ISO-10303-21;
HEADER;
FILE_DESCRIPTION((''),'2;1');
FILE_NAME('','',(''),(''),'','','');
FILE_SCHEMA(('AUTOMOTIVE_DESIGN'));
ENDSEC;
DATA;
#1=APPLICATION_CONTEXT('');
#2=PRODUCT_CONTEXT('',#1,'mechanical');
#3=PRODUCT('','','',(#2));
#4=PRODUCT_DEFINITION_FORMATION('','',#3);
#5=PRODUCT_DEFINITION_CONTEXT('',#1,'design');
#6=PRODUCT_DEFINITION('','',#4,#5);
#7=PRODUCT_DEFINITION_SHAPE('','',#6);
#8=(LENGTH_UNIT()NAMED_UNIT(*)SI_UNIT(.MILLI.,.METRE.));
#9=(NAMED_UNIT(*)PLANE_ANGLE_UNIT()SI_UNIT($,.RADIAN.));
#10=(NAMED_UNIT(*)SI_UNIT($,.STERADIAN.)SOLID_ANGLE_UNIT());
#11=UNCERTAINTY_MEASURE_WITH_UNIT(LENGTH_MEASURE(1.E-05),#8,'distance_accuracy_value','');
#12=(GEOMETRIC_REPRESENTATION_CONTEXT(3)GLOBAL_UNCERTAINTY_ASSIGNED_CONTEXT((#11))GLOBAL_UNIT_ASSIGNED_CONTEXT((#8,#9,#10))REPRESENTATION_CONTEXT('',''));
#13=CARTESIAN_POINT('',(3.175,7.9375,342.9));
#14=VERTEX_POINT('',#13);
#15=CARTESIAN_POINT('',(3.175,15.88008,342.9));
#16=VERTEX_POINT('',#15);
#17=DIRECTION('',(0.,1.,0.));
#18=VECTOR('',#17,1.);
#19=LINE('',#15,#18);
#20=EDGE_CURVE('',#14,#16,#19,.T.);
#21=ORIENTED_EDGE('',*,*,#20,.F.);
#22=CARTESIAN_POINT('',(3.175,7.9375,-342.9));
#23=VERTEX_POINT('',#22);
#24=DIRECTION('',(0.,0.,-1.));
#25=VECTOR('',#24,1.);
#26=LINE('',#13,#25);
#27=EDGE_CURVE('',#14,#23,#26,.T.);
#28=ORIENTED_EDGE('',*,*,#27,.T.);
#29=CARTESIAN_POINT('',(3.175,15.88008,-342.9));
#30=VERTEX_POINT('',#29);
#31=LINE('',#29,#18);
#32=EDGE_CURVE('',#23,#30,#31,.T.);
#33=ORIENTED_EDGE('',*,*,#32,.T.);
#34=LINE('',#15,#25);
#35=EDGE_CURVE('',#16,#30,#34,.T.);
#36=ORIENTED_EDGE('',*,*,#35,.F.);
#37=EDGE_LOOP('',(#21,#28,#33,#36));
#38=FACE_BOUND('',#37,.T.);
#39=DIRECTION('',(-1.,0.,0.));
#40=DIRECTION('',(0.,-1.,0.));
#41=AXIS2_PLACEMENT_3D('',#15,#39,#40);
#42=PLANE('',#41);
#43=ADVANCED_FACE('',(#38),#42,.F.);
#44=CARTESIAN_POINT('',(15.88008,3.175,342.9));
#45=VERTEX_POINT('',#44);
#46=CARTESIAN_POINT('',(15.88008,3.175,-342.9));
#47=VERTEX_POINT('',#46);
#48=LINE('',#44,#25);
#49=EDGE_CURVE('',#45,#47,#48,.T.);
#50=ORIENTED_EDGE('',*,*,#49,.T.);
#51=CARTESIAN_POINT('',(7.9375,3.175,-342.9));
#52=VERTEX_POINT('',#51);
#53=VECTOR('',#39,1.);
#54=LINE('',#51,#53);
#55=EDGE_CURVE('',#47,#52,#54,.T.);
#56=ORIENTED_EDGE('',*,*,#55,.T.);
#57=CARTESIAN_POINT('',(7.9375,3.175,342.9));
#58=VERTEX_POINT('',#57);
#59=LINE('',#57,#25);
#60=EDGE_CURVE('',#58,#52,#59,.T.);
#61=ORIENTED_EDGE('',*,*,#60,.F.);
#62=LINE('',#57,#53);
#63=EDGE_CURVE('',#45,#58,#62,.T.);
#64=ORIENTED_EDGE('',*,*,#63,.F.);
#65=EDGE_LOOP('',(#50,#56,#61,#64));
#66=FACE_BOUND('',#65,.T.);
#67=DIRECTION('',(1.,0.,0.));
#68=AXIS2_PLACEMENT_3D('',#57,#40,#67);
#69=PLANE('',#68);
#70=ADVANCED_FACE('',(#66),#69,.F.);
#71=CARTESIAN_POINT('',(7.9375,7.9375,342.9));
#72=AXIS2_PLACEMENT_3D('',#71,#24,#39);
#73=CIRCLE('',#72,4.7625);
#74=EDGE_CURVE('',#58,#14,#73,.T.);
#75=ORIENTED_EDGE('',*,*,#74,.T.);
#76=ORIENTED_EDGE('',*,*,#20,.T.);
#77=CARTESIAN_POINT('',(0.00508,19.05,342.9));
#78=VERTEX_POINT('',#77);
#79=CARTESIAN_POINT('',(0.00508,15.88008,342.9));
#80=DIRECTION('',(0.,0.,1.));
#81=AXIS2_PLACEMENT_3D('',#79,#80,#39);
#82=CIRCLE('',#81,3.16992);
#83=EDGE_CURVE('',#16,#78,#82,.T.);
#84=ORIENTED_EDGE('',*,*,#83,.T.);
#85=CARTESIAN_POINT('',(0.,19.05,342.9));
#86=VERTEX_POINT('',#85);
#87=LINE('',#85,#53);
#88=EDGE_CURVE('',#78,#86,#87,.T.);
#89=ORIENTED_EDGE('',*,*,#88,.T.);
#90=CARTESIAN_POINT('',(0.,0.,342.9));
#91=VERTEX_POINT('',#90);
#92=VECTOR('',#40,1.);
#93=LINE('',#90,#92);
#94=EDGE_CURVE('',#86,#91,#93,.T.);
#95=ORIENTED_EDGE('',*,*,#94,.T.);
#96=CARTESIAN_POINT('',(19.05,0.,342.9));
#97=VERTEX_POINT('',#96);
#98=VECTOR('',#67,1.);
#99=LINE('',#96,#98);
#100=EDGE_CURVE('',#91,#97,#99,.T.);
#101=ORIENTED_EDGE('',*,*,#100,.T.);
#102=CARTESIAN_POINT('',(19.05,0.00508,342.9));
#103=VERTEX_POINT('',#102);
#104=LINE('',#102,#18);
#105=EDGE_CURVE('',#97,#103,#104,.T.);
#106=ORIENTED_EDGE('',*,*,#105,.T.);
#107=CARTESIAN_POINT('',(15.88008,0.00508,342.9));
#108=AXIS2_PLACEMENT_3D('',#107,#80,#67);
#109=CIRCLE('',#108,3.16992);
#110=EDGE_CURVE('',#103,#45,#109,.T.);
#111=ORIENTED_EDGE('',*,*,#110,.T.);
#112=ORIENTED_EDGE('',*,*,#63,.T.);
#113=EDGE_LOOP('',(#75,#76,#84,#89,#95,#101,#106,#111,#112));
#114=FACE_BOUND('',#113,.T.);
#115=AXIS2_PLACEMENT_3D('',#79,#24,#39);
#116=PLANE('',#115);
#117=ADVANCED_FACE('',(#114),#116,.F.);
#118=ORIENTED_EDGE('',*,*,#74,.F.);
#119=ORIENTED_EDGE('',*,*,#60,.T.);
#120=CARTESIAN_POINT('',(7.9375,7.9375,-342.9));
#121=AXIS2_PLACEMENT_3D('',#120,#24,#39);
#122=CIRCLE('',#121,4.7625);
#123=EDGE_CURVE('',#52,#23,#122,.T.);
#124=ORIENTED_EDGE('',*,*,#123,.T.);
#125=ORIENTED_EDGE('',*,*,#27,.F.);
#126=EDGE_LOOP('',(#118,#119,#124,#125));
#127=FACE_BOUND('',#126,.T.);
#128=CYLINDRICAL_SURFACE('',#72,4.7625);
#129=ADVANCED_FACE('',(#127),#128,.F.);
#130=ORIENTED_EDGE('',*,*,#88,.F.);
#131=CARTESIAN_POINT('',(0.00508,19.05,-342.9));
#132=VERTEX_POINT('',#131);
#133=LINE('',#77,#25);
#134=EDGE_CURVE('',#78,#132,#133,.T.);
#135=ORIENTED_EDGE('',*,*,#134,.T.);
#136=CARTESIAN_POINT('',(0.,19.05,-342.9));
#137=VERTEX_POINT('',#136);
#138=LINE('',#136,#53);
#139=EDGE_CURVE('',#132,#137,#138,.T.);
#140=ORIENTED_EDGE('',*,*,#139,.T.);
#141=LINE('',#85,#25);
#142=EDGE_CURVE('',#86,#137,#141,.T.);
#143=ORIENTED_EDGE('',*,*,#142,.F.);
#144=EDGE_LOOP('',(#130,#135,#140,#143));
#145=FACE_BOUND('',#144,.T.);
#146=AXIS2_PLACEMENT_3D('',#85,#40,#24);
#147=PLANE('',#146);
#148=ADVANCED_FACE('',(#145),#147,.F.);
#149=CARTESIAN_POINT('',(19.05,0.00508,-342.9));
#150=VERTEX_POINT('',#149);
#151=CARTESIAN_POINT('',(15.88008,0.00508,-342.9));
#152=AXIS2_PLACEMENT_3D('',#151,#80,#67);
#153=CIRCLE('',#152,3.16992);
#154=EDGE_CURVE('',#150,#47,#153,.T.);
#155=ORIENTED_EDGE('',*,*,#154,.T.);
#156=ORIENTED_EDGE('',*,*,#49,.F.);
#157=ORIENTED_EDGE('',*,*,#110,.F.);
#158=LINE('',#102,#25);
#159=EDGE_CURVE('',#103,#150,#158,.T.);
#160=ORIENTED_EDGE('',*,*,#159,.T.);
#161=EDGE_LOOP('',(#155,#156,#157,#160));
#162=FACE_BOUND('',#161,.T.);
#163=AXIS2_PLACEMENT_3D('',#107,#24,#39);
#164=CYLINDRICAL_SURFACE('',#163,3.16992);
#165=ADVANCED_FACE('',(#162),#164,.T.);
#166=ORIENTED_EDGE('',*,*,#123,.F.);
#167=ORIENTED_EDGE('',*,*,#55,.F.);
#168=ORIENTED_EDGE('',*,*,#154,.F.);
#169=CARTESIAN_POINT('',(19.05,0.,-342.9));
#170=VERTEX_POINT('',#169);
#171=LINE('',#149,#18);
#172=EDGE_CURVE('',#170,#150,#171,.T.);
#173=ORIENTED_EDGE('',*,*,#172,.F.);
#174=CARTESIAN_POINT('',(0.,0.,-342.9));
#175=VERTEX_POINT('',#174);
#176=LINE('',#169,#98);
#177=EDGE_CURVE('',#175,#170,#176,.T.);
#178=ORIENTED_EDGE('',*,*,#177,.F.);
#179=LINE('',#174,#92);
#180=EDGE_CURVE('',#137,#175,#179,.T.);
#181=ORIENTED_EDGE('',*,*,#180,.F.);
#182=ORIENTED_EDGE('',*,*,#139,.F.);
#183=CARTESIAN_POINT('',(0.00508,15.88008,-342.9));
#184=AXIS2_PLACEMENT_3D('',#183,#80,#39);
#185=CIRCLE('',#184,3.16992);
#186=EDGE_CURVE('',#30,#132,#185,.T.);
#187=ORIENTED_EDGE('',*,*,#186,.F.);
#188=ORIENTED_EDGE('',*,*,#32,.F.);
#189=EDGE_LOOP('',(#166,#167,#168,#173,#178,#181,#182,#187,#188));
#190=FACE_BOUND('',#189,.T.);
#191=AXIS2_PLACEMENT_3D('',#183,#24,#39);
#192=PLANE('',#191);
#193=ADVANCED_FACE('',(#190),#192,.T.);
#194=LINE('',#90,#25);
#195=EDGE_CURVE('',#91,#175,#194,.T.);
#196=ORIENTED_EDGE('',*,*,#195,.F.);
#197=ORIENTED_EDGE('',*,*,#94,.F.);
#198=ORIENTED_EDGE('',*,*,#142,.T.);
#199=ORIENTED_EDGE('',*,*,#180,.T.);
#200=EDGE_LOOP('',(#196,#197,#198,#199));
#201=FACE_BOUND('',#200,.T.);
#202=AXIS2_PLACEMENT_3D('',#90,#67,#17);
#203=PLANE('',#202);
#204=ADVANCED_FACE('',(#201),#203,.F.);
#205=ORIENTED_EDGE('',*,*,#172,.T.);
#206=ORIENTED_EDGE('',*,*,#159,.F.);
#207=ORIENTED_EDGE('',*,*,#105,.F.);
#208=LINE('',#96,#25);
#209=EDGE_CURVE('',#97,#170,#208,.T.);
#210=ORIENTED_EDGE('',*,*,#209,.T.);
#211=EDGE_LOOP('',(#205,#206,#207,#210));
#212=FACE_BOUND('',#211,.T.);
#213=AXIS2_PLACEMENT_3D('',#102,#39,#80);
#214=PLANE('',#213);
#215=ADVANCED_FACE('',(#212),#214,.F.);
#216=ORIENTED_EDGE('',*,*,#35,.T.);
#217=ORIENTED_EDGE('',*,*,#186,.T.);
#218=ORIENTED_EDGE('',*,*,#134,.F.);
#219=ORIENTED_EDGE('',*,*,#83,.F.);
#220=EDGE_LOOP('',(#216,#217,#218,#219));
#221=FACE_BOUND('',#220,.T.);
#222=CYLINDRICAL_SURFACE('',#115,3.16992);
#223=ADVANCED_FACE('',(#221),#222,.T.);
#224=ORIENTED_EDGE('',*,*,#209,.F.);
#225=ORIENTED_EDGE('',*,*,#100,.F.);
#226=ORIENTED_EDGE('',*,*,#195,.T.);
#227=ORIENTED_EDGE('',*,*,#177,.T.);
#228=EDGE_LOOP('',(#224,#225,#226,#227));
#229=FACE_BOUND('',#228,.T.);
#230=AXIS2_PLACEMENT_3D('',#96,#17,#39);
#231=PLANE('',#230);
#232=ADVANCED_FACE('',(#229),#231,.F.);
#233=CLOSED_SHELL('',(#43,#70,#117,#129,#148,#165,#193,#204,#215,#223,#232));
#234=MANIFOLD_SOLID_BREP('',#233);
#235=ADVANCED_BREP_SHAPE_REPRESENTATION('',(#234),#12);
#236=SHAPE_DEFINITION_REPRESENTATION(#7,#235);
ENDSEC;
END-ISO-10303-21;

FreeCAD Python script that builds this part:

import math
import FreeCAD as App
import Part
import Sketcher
Q = App.Units.Quantity

doc = App.newDocument("Part")
body = doc.addObject("PartDesign::Body", "Body")

# Sketch on XY plane
sketch1 = body.newObject("Sketcher::SketchObject", "Sketch")
sketch1.AttachmentSupport = (doc.getObject("XY_Plane"), [""])
sketch1.MapMode = "FlatFace"
sketch1.addGeometry([
    Part.LineSegment(App.Vector(0, 19.05, 0), App.Vector(0, 0, 0)),  # 0
    Part.LineSegment(App.Vector(0, 0, 0), App.Vector(19.05, 0, 0)),  # 1
    Part.LineSegment(App.Vector(19.05, 0, 0), App.Vector(19.05, 0.005, 0)),  # 2
    Part.ArcOfCircle(Part.Circle(App.Vector(15.88, 0.005, 0), App.Vector(0, 0, 1), 3.17), math.radians(0), math.radians(90)),  # 3
    Part.LineSegment(App.Vector(15.88, 3.175, 0), App.Vector(7.938, 3.175, 0)),  # 4
    Part.ArcOfCircle(Part.Circle(App.Vector(7.938, 7.938, 0), App.Vector(0, 0, 1), 4.763), math.radians(-180), math.radians(-90)),  # 5
    Part.LineSegment(App.Vector(3.175, 7.938, 0), App.Vector(3.175, 15.88, 0)),  # 6
    Part.ArcOfCircle(Part.Circle(App.Vector(0.005, 15.88, 0), App.Vector(0, 0, 1), 3.17), math.radians(0), math.radians(90)),  # 7
    Part.LineSegment(App.Vector(0.005, 19.05, 0), App.Vector(0, 19.05, 0)),  # 8
], False)
sketch1.addConstraint([
    Sketcher.Constraint("Coincident", 0, 2, 1, 1),
    Sketcher.Constraint("Coincident", 1, 2, 2, 1),
    Sketcher.Constraint("Tangent", 2, 2, 3, 1),
    Sketcher.Constraint("Tangent", 3, 2, 4, 1),
    Sketcher.Constraint("Tangent", 4, 2, 5, 2),
    Sketcher.Constraint("Tangent", 5, 1, 6, 1),
    Sketcher.Constraint("Tangent", 6, 2, 7, 1),
    Sketcher.Constraint("Tangent", 7, 2, 8, 1),
    Sketcher.Constraint("Coincident", 8, 2, 0, 1),
    Sketcher.Constraint("Vertical", 0),
    Sketcher.Constraint("Horizontal", 1),
    Sketcher.Constraint("Horizontal", 4),
    Sketcher.Constraint("Vertical", 6),
    Sketcher.Constraint("Coincident", 0, 2, -1, 1),
    Sketcher.Constraint("Equal", 3, 7),
    Sketcher.Constraint("Horizontal", 3, 3, 2, 2),
    Sketcher.Constraint("Equal", 1, 0),
    Sketcher.Constraint("Equal", 8, 2),
    Sketcher.Constraint("Equal", 4, 6),
    Sketcher.Constraint("Radius", 5, Q("0.1875 in")),
    Sketcher.Constraint("DistanceX", 1, 1, 1, 2, Q("0.75 in")),
    Sketcher.Constraint("Radius", 3, Q("0.1248 in")),
    Sketcher.Constraint("DistanceX", 4, 2, 4, 1, Q("0.3127 in")),
])
pad1 = body.newObject("PartDesign::Pad", "Pad")
pad1.Profile = sketch1
pad1.Length = Q("27 in")
pad1.Midplane = True

doc.recompute()
